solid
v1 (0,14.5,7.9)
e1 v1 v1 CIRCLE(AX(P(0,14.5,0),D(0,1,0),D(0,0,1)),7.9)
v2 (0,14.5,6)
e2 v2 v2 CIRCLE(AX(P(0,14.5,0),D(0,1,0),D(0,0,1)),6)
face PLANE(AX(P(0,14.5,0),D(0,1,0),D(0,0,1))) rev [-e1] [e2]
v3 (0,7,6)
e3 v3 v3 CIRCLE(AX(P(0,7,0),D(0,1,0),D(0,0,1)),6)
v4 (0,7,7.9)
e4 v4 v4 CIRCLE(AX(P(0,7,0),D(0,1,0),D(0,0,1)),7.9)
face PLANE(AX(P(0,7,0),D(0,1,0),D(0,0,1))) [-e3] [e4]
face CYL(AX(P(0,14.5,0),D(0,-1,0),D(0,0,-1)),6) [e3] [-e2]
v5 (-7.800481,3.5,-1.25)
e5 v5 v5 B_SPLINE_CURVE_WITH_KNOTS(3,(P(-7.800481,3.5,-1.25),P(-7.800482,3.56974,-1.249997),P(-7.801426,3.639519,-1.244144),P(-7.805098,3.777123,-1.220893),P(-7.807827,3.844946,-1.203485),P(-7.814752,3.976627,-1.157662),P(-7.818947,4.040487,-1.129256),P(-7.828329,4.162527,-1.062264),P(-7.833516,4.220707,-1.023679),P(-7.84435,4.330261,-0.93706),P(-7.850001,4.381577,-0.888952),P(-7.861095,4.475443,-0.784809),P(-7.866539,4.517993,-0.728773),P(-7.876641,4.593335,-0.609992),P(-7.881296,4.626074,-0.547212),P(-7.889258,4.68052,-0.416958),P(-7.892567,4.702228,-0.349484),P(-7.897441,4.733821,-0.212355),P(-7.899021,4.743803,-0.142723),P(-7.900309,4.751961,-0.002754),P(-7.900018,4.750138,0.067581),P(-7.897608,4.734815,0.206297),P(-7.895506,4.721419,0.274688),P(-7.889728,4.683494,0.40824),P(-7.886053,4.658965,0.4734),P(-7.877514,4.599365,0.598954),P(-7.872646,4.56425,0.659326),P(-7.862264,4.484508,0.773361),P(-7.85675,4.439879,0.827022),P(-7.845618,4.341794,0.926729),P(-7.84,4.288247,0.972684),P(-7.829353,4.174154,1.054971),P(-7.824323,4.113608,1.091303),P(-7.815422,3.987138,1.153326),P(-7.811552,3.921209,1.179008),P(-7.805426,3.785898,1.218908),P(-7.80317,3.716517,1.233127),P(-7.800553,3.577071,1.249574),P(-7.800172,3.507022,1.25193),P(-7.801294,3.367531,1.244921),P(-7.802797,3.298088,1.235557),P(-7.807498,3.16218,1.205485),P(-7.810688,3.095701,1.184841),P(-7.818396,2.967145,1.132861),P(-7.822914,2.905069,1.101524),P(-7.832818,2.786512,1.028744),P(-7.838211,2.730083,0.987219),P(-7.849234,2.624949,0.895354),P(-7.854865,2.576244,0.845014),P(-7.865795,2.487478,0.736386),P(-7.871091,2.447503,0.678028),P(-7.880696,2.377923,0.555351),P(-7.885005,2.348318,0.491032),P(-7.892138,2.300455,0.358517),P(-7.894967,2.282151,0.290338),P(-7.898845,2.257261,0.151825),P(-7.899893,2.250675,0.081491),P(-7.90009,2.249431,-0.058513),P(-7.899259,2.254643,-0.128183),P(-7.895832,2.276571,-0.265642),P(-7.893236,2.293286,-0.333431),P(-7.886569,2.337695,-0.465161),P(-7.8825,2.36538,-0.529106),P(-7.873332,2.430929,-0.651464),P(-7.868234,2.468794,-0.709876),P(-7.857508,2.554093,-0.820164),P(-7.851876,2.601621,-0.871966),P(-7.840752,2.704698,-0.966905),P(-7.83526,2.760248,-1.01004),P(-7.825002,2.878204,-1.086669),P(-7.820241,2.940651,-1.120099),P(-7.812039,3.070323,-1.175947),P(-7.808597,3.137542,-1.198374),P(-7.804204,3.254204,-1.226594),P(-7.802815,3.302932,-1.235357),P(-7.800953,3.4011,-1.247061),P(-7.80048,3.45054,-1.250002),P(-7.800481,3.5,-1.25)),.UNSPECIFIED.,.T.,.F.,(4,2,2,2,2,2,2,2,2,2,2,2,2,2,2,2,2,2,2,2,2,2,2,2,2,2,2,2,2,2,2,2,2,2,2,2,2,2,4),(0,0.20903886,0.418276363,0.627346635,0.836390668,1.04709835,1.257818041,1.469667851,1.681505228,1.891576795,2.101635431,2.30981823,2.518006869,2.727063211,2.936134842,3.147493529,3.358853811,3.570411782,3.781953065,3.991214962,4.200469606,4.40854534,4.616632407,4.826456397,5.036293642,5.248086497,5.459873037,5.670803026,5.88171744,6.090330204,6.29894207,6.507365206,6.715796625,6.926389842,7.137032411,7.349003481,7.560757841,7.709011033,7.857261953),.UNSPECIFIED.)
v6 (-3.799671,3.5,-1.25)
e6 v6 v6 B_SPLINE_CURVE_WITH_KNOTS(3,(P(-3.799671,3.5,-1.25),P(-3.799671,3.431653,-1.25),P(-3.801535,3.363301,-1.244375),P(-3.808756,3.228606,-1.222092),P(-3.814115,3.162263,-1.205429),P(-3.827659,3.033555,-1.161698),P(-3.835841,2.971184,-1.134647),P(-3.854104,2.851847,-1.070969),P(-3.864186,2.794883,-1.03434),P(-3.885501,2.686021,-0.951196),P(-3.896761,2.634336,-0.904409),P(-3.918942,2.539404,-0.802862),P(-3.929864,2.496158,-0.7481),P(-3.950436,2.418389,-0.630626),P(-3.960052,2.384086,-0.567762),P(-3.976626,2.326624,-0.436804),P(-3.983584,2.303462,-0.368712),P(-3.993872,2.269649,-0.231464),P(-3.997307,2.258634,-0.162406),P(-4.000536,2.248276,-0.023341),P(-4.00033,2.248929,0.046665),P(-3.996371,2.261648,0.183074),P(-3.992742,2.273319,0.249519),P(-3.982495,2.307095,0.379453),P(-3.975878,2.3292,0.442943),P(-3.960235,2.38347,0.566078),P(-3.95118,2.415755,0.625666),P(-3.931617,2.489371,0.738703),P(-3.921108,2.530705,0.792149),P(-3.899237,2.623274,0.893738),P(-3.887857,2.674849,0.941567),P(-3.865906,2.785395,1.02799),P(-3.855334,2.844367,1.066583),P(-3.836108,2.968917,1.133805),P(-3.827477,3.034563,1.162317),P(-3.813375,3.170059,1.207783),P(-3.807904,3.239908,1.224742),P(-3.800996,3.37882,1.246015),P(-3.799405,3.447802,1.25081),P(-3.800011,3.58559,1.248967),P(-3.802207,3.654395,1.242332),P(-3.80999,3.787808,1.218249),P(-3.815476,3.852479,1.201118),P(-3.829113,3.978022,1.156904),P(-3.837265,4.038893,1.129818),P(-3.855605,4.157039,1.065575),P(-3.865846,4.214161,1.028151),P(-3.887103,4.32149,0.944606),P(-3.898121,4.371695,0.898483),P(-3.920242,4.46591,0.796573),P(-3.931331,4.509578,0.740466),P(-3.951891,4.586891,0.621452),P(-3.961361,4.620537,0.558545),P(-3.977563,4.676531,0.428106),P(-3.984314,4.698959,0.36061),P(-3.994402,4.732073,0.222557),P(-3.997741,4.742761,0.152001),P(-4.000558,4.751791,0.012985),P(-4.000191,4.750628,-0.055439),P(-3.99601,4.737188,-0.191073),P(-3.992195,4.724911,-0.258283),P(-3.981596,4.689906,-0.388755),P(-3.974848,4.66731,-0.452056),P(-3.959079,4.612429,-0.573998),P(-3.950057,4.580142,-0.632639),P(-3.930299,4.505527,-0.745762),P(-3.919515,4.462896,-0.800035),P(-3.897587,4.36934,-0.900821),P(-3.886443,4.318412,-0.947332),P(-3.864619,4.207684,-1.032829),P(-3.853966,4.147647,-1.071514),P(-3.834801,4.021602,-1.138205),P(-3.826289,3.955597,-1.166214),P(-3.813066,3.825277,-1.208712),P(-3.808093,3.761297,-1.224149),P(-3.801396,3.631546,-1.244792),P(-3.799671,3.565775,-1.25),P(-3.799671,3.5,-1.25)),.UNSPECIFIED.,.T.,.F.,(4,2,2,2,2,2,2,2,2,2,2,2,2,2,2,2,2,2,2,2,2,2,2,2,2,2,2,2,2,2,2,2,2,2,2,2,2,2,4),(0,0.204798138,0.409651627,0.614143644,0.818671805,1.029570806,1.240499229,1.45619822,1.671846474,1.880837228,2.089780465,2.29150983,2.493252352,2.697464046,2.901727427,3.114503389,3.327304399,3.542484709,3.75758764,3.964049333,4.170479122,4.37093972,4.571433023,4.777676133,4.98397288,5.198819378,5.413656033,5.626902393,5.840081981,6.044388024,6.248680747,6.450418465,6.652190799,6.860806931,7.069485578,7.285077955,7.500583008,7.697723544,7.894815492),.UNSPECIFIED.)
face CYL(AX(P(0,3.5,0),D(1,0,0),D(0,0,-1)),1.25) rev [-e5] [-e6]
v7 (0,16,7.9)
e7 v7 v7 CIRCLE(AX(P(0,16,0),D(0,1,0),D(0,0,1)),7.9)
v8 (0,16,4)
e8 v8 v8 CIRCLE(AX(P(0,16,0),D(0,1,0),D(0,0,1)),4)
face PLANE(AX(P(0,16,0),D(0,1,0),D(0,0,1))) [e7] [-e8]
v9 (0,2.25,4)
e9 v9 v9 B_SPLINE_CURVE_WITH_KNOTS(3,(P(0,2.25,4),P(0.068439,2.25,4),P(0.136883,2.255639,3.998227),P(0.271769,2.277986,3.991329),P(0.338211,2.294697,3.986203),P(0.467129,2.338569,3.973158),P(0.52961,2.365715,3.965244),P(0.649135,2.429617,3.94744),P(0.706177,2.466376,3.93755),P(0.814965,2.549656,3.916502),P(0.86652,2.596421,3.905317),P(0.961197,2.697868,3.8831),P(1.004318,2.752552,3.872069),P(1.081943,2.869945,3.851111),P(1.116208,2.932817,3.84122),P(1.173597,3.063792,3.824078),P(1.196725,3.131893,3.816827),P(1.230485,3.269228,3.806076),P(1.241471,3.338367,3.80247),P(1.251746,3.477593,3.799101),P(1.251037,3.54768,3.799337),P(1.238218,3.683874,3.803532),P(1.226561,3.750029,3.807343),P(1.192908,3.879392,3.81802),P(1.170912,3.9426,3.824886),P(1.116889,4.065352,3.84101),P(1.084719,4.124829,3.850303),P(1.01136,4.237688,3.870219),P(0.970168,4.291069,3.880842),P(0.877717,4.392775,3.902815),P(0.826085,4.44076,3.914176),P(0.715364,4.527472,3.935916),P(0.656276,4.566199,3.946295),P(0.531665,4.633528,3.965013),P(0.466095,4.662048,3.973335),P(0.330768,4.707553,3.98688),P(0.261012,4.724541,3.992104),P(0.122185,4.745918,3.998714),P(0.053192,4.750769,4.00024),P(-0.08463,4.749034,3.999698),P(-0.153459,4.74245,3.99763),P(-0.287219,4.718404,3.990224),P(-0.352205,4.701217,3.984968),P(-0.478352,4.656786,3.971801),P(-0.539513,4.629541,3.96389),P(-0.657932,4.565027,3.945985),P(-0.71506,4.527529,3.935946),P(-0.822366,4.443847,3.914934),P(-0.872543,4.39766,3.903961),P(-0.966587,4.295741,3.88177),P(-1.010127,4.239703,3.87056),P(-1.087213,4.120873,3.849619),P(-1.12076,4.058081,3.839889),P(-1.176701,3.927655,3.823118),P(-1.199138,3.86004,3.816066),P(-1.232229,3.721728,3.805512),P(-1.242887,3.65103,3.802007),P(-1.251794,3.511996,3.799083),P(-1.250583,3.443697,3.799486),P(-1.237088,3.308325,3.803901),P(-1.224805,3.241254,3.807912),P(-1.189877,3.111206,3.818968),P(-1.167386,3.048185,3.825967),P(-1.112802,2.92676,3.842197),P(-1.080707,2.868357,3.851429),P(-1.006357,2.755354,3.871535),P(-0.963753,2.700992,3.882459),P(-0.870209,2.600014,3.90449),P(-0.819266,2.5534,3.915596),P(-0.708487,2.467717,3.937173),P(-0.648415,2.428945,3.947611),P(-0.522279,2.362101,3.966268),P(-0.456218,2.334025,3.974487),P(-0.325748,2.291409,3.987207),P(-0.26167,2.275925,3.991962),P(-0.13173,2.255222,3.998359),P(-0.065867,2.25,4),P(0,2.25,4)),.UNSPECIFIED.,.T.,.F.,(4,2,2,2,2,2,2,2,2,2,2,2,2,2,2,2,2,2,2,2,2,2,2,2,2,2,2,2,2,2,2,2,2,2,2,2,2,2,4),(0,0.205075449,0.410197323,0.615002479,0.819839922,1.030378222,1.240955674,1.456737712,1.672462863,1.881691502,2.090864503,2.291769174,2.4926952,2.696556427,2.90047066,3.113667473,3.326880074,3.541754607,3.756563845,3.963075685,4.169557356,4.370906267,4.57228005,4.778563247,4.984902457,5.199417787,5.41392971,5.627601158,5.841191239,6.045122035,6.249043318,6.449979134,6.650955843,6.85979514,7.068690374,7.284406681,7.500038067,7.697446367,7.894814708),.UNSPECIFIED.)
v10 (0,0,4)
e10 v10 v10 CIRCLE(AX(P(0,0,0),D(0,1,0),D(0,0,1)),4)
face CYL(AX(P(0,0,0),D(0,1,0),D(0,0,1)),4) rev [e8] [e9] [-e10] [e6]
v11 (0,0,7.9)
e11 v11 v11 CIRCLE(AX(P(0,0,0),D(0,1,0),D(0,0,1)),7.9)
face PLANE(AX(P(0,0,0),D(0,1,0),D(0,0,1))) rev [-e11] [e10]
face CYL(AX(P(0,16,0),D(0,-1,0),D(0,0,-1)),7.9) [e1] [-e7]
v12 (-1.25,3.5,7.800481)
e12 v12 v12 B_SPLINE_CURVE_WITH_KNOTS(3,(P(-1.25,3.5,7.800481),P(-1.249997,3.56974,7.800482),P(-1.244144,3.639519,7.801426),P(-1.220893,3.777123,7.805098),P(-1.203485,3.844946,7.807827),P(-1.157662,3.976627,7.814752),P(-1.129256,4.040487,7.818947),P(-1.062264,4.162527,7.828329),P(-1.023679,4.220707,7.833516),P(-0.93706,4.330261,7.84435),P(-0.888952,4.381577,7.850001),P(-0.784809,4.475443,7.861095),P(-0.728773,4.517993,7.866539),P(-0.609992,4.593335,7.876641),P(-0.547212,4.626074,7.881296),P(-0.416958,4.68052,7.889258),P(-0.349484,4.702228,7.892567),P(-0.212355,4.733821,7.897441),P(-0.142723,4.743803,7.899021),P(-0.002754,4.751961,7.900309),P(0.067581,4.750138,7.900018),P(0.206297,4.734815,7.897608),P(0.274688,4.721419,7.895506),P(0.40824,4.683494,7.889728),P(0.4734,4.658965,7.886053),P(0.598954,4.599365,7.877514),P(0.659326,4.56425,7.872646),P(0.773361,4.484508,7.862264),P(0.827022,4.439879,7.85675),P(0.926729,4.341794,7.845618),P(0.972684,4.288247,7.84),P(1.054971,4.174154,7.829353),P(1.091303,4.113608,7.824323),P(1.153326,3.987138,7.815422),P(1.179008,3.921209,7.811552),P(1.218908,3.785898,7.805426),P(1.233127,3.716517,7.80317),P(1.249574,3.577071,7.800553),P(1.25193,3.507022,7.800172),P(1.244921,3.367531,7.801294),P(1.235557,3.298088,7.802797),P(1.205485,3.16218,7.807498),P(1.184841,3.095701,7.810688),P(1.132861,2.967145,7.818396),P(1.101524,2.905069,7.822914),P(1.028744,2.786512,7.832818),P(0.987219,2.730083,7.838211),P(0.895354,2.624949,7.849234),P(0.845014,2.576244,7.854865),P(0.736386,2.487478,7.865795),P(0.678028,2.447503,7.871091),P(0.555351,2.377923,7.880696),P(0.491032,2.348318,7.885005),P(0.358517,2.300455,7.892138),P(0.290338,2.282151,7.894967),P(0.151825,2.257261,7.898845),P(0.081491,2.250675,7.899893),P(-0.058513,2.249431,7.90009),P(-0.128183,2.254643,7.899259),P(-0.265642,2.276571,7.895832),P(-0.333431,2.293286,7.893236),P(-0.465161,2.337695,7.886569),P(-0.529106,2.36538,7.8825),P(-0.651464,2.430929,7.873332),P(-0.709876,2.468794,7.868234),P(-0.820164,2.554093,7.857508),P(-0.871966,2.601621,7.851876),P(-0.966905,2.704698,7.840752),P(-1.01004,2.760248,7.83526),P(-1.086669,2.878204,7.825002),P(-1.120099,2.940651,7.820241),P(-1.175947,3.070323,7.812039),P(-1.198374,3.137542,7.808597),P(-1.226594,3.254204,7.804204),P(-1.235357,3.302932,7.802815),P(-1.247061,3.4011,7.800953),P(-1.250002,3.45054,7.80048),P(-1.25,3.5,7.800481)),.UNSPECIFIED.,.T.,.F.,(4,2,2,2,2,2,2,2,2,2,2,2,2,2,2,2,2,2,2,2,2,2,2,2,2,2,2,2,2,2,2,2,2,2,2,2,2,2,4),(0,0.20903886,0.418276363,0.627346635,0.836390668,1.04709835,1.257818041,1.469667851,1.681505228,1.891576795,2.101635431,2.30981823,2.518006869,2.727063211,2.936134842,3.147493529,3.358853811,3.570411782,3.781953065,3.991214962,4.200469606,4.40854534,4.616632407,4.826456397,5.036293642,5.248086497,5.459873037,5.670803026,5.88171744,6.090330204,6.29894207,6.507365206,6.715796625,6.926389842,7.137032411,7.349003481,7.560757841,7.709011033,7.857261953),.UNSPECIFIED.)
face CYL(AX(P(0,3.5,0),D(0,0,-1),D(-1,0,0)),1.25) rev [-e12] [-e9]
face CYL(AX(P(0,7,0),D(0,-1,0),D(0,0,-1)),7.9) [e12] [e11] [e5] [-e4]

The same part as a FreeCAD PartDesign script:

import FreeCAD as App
import Part
import Sketcher
Q = App.Units.Quantity


def add_polygon(sketch, points):
    """Adds a closed chain of lines whose ends are joined by coincident constraints."""
    first, n = sketch.GeometryCount, len(points)
    for a, b in zip(points, points[1:] + points[:1]):
        sketch.addGeometry(Part.LineSegment(App.Vector(*a, 0), App.Vector(*b, 0)), False)
    for i in range(n):
        sketch.addConstraint(Sketcher.Constraint("Coincident", first + i, 2, first + (i + 1) % n, 1))

doc = App.newDocument("Part")
params = doc.addObject("Spreadsheet::Sheet", "Params")
for row, (alias, value) in enumerate([
    ("sketch1_diameter", "15.8 mm"),
    ("pad1_length", "7 mm"),
    ("sketch2_diameter", "12 mm"),
    ("pad2_length", "7.5 mm"),
    ("sketch3_diameter", "15.8 mm"),
    ("pad3_length", "1.5 mm"),
    ("sketch4_diameter", "8 mm"),
    ("sketch5_width", "1.25 mm"),
    ("groove_angle", "360 deg"),
], start=1):
    params.set(f"A{row}", alias)
    params.set(f"B{row}", "=" + value)
    params.setAlias(f"B{row}", alias)

body = doc.addObject("PartDesign::Body", "Body")

# Sketch on XZ plane
sketch1 = body.newObject("Sketcher::SketchObject", "Sketch")
sketch1.AttachmentSupport = (doc.getObject("XZ_Plane"), [""])
sketch1.MapMode = "FlatFace"
sketch1.addGeometry(Part.Circle(App.Vector(0, 0, 0), App.Vector(0, 0, 1), 8), False)
sketch1.addConstraint([
    Sketcher.Constraint("Coincident", 0, 3, -1, 1),
    Sketcher.Constraint("Diameter", 0, Q("15.8 mm")),
])
sketch1.setExpression("Constraints[1]", "Params.sketch1_diameter")
pad1 = body.newObject("PartDesign::Pad", "Pad")
pad1.Profile = sketch1
pad1.setExpression("Length", "Params.pad1_length")
pad1.Reversed = True

# Sketch on XZ plane
sketch2 = body.newObject("Sketcher::SketchObject", "Sketch001")
sketch2.AttachmentSupport = (doc.getObject("XZ_Plane"), [""])
sketch2.MapMode = "FlatFace"
sketch2.AttachmentOffset = App.Placement(App.Vector(0, 0, -7), App.Rotation())
sketch2.addGeometry(Part.Circle(App.Vector(0, 0, 0), App.Vector(0, 0, 1), 6), False)
sketch2.addConstraint([
    Sketcher.Constraint("Coincident", 0, 3, -1, 1),
    Sketcher.Constraint("Diameter", 0, Q("12 mm")),
])
sketch2.setExpression("Constraints[1]", "Params.sketch2_diameter")
pad2 = body.newObject("PartDesign::Pad", "Pad001")
pad2.Profile = sketch2
pad2.setExpression("Length", "Params.pad2_length")
pad2.Reversed = True

# Sketch on XZ plane
sketch3 = body.newObject("Sketcher::SketchObject", "Sketch002")
sketch3.AttachmentSupport = (doc.getObject("XZ_Plane"), [""])
sketch3.MapMode = "FlatFace"
sketch3.AttachmentOffset = App.Placement(App.Vector(0, 0, -14.5), App.Rotation())
sketch3.addGeometry(Part.Circle(App.Vector(0, 0, 0), App.Vector(0, 0, 1), 8), False)
sketch3.addConstraint([
    Sketcher.Constraint("Coincident", 0, 3, -1, 1),
    Sketcher.Constraint("Diameter", 0, Q("15.8 mm")),
])
sketch3.setExpression("Constraints[1]", "Params.sketch3_diameter")
pad3 = body.newObject("PartDesign::Pad", "Pad002")
pad3.Profile = sketch3
pad3.setExpression("Length", "Params.pad3_length")
pad3.Reversed = True

# Sketch on XZ plane
sketch4 = body.newObject("Sketcher::SketchObject", "Sketch003")
sketch4.AttachmentSupport = (doc.getObject("XZ_Plane"), [""])
sketch4.MapMode = "FlatFace"
sketch4.AttachmentOffset = App.Placement(App.Vector(0, 0, -16), App.Rotation())
sketch4.addGeometry(Part.Circle(App.Vector(0, 0, 0), App.Vector(0, 0, 1), 4), False)
sketch4.addConstraint([
    Sketcher.Constraint("Coincident", 0, 3, -1, 1),
    Sketcher.Constraint("Diameter", 0, Q("8 mm")),
])
sketch4.setExpression("Constraints[1]", "Params.sketch4_diameter")
pocket1 = body.newObject("PartDesign::Pocket", "Pocket")
pocket1.Profile = sketch4
pocket1.Type = "ThroughAll"
pocket1.Reversed = True

# Sketch on YZ plane
sketch5 = body.newObject("Sketcher::SketchObject", "Sketch004")
sketch5.AttachmentSupport = (doc.getObject("YZ_Plane"), [""])
sketch5.MapMode = "FlatFace"
add_polygon(sketch5, [(3.5, 7.9), (3.5, 0), (4.8, 0), (4.8, 7.9)])  # lines 0-3
sketch5.addGeometry(Part.LineSegment(App.Vector(3.5, 0, 0), App.Vector(3.5, 7.9, 0)), True)  # axis
sketch5.addConstraint([
    Sketcher.Constraint("Vertical", 0),
    Sketcher.Constraint("Horizontal", 1),
    Sketcher.Constraint("Vertical", 2),
    Sketcher.Constraint("Horizontal", 3),
    Sketcher.Constraint("Vertical", 4),
    Sketcher.Constraint("Coincident", 4, 1, 0, 2),
    Sketcher.Constraint("PointOnObject", 0, 2, -1),
    Sketcher.Constraint("Horizontal", 2, 2, 4, 2),
    Sketcher.Constraint("DistanceX", 1, 1, 1, 2, Q("1.25 mm")),
    Sketcher.Constraint("DistanceX", -1, 1, 0, 2, Q("3.5 mm")),
    Sketcher.Constraint("DistanceY", 0, 2, 0, 1, Q("7.901 mm")),
])
sketch5.setExpression("Constraints[12]", "Params.sketch5_width")
groove = body.newObject("PartDesign::Groove", "Groove")
groove.Profile = sketch5
groove.ReferenceAxis = (sketch5, ["Axis0"])
groove.setExpression("Angle", "Params.groove_angle")
doc.recompute()

polarpattern = body.newObject("PartDesign::PolarPattern", "PolarPattern")
polarpattern.Originals = [groove]
polarpattern.Axis = (doc.getObject("Y_Axis"), [""])
polarpattern.Angle = 90
polarpattern.Occurrences = 2
polarpattern.Reversed = True
body.Tip = polarpattern

doc.recompute()
